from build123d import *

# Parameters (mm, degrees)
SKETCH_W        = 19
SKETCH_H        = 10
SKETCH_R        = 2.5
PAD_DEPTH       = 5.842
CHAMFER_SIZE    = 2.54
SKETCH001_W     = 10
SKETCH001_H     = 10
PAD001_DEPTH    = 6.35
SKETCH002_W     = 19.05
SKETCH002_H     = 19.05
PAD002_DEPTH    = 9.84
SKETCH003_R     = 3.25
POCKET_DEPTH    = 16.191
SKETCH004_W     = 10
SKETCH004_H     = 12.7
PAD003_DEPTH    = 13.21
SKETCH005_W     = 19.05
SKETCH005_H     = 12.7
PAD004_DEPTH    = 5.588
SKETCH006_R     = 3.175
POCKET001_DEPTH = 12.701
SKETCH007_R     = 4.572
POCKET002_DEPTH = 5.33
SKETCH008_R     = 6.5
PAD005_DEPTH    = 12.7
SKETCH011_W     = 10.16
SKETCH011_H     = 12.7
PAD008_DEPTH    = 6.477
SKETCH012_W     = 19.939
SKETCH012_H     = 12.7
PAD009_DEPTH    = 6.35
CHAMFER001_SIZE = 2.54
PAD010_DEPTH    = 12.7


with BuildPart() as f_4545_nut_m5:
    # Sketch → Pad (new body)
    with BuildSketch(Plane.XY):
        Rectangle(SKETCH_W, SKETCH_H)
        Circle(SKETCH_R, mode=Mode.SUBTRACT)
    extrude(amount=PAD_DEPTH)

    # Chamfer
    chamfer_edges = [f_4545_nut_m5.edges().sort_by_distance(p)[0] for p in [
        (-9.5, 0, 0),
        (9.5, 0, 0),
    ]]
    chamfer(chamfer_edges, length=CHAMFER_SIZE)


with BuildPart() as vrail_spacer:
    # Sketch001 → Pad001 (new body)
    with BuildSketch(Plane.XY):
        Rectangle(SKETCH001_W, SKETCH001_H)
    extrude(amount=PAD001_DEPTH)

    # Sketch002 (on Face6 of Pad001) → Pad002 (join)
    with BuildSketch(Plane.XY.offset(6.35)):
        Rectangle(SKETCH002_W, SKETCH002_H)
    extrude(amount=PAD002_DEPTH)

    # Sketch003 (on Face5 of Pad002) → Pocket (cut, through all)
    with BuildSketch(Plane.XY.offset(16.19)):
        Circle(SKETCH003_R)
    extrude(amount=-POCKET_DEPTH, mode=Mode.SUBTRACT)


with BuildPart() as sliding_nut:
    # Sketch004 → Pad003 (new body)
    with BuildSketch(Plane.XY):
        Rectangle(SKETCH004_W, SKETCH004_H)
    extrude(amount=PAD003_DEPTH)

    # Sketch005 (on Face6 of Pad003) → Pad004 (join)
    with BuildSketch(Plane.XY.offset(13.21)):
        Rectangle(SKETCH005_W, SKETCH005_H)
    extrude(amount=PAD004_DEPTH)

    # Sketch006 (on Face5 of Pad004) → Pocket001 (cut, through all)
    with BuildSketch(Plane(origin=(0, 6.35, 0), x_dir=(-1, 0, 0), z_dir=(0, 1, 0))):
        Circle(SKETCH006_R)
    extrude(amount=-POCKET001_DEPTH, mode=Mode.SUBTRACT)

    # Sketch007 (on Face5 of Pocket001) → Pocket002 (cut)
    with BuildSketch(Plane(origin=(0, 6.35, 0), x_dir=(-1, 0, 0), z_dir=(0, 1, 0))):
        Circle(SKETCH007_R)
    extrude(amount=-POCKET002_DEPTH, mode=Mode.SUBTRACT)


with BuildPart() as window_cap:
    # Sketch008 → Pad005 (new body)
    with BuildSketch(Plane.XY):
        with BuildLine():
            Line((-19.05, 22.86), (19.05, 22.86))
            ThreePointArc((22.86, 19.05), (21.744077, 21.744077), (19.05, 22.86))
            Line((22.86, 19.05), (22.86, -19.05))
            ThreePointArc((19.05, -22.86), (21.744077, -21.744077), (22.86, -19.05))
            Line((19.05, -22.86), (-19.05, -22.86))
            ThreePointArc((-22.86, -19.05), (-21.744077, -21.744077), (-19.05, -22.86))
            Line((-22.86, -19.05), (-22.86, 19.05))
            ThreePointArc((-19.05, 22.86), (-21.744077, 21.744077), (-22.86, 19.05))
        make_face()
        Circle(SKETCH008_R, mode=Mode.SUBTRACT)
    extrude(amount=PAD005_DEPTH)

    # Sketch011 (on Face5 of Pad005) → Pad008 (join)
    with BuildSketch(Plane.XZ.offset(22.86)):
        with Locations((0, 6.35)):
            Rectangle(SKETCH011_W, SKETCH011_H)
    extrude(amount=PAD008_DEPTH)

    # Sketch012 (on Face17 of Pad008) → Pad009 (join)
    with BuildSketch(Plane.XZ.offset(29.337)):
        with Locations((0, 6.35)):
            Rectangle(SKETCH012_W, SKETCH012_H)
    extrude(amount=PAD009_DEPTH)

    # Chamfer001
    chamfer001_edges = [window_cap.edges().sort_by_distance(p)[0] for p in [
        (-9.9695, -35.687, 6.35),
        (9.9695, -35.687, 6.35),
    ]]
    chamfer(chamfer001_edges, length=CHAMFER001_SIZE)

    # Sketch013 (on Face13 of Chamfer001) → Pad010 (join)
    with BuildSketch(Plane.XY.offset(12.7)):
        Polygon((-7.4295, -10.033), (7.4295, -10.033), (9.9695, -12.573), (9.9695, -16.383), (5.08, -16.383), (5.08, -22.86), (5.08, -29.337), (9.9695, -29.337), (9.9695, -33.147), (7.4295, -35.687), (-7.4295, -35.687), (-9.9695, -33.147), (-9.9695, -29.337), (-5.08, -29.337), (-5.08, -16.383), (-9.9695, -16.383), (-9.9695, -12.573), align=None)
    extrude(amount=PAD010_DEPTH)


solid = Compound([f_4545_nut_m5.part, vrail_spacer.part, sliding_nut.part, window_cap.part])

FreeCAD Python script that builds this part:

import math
import FreeCAD as App
import Part
import Sketcher

V = App.Vector
Q = App.Units.Quantity


def edges_at(feature, points):
    """Names of the edges that pass closest to the given points."""
    edges = feature.Shape.Edges
    near = lambda p: min(range(len(edges)), key=lambda i: edges[i].distToShape(Part.Vertex(*p))[0])
    return sorted({f"Edge{near(p) + 1}" for p in points})


def add_polygon(sketch, points):
    """Adds a closed chain of lines whose ends are joined by coincident constraints."""
    first, n = sketch.GeometryCount, len(points)
    for a, b in zip(points, points[1:] + points[:1]):
        sketch.addGeometry(Part.LineSegment(App.Vector(*a, 0), App.Vector(*b, 0)), False)
    for i in range(n):
        sketch.addConstraint(Sketcher.Constraint("Coincident", first + i, 2, first + (i + 1) % n, 1))

doc = App.newDocument("Part")
body = doc.addObject("PartDesign::Body", "Body")

# Sketch on XY plane
sketch1 = body.newObject("Sketcher::SketchObject", "Sketch")
sketch1.AttachmentSupport = (doc.getObject("XY_Plane"), [""])
sketch1.MapMode = "FlatFace"
add_polygon(sketch1, [(-9.5, 5), (-9.5, -5), (9.5, -5), (9.5, 5)])  # lines 0-3
sketch1.addGeometry(Part.Circle(V(0, 0, 0), V(0, 0, 1), 2.5), False)  # 4
sketch1.addConstraint([
    Sketcher.Constraint("Vertical", 0),
    Sketcher.Constraint("Horizontal", 1),
    Sketcher.Constraint("Vertical", 2),
    Sketcher.Constraint("Horizontal", 3),
    Sketcher.Constraint("Coincident", 4, 3, -1, 1),
    Sketcher.Constraint("Symmetric", 0, 2, 2, 2, -1, 1),
    Sketcher.Constraint("Diameter", 4, Q("5 mm")),
    Sketcher.Constraint("DistanceX", 1, 1, 1, 2, Q("19 mm")),
    Sketcher.Constraint("DistanceY", 0, 2, 0, 1, Q("10 mm")),
])
pad1 = body.newObject("PartDesign::Pad", "Pad")
pad1.Profile = sketch1
pad1.Length = Q("0.23 in")
doc.recompute()

chamfer = body.newObject("PartDesign::Chamfer", "Chamfer")
chamfer.Base = (pad1, edges_at(pad1, [(-9.5, 0, 0), (9.5, 0, 0)]))
chamfer.Size = Q("0.1 in")
body2 = doc.addObject("PartDesign::Body", "Body001")

# Sketch on XY plane
sketch2 = body2.newObject("Sketcher::SketchObject", "Sketch001")
sketch2.AttachmentSupport = (doc.getObject("XY_Plane001"), [""])
sketch2.MapMode = "FlatFace"
add_polygon(sketch2, [(-5, 5), (-5, -5), (5, -5), (5, 5)])  # lines 0-3
sketch2.addConstraint([
    Sketcher.Constraint("Vertical", 0),
    Sketcher.Constraint("Horizontal", 1),
    Sketcher.Constraint("Vertical", 2),
    Sketcher.Constraint("Horizontal", 3),
    Sketcher.Constraint("Symmetric", 0, 2, 2, 2, -1, 1),
    Sketcher.Constraint("Equal", 3, 0),
    Sketcher.Constraint("DistanceX", 1, 1, 1, 2, Q("10 mm")),
])
pad2 = body2.newObject("PartDesign::Pad", "Pad001")
pad2.Profile = sketch2
pad2.Length = Q("0.25 in")

# Sketch on XY plane
sketch3 = body2.newObject("Sketcher::SketchObject", "Sketch002")
sketch3.AttachmentSupport = (doc.getObject("XY_Plane001"), [""])
sketch3.MapMode = "FlatFace"
sketch3.AttachmentOffset = App.Placement(V(0, 0, 0.25 * 25.4), App.Rotation())
add_polygon(sketch3, [(-10, 10), (-10, -10), (10, -10), (10, 10)])  # lines 0-3
sketch3.addConstraint([
    Sketcher.Constraint("Vertical", 0),
    Sketcher.Constraint("Horizontal", 1),
    Sketcher.Constraint("Vertical", 2),
    Sketcher.Constraint("Horizontal", 3),
    Sketcher.Constraint("Symmetric", 0, 2, 2, 2, -1, 1),
    Sketcher.Constraint("Equal", 3, 0),
    Sketcher.Constraint("DistanceX", 1, 1, 1, 2, Q("0.75 in")),
])
pad3 = body2.newObject("PartDesign::Pad", "Pad002")
pad3.Profile = sketch3
pad3.Length = 9.84

# Sketch on XY plane
sketch4 = body2.newObject("Sketcher::SketchObject", "Sketch003")
sketch4.AttachmentSupport = (doc.getObject("XY_Plane001"), [""])
sketch4.MapMode = "FlatFace"
sketch4.AttachmentOffset = App.Placement(V(0, 0, 16.19), App.Rotation())
sketch4.addGeometry(Part.Circle(V(0, 0, 0), V(0, 0, 1), 3.2), False)
sketch4.addConstraint([
    Sketcher.Constraint("Coincident", 0, 3, -1, 1),
    Sketcher.Constraint("Diameter", 0, Q("6.5 mm")),
])
pocket1 = body2.newObject("PartDesign::Pocket", "Pocket")
pocket1.Profile = sketch4
pocket1.Type = "ThroughAll"
body3 = doc.addObject("PartDesign::Body", "Body002")

# Sketch on XY plane
sketch5 = body3.newObject("Sketcher::SketchObject", "Sketch004")
sketch5.AttachmentSupport = (doc.getObject("XY_Plane002"), [""])
sketch5.MapMode = "FlatFace"
add_polygon(sketch5, [(-5, 6), (-5, -6), (5, -6), (5, 6)])  # lines 0-3
sketch5.addConstraint([
    Sketcher.Constraint("Vertical", 0),
    Sketcher.Constraint("Horizontal", 1),
    Sketcher.Constraint("Vertical", 2),
    Sketcher.Constraint("Horizontal", 3),
    Sketcher.Constraint("Symmetric", 0, 2, 2, 2, -1, 1),
    Sketcher.Constraint("DistanceY", 0, 2, 0, 1, Q("0.5 in")),
    Sketcher.Constraint("DistanceX", 1, 1, 1, 2, Q("10 mm")),
])
pad4 = body3.newObject("PartDesign::Pad", "Pad003")
pad4.Profile = sketch5
pad4.Length = 13.21

# Sketch on XY plane
sketch6 = body3.newObject("Sketcher::SketchObject", "Sketch005")
sketch6.AttachmentSupport = (doc.getObject("XY_Plane002"), [""])
sketch6.MapMode = "FlatFace"
sketch6.AttachmentOffset = App.Placement(V(0, 0, 13.21), App.Rotation())
add_polygon(sketch6, [(-10, 6), (-10, -6), (10, -6), (10, 6)])  # lines 0-3
sketch6.addConstraint([
    Sketcher.Constraint("Vertical", 0),
    Sketcher.Constraint("Horizontal", 1),
    Sketcher.Constraint("Vertical", 2),
    Sketcher.Constraint("Horizontal", 3),
    Sketcher.Constraint("Symmetric", 0, 2, 2, 2, -1, 1),
    Sketcher.Constraint("DistanceY", 0, 2, 0, 1, Q("0.5 in")),
    Sketcher.Constraint("DistanceX", 1, 1, 1, 2, Q("0.75 in")),
])
pad5 = body3.newObject("PartDesign::Pad", "Pad004")
pad5.Profile = sketch6
pad5.Length = Q("0.22 in")

# Sketch on XZ plane
sketch7 = body3.newObject("Sketcher::SketchObject", "Sketch006")
sketch7.AttachmentSupport = (doc.getObject("XZ_Plane002"), [""])
sketch7.MapMode = "FlatFace"
sketch7.AttachmentOffset = App.Placement(V(0, 0, -0.25 * 25.4), App.Rotation())
sketch7.addGeometry(Part.Circle(V(0, 0, 0), V(0, 0, 1), 3.2), False)
sketch7.addConstraint([
    Sketcher.Constraint("Coincident", 0, 3, -1, 1),
    Sketcher.Constraint("Diameter", 0, Q("0.25 in")),
])
pocket2 = body3.newObject("PartDesign::Pocket", "Pocket001")
pocket2.Profile = sketch7
pocket2.Type = "ThroughAll"
pocket2.Reversed = True

# Sketch on XZ plane
sketch8 = body3.newObject("Sketcher::SketchObject", "Sketch007")
sketch8.AttachmentSupport = (doc.getObject("XZ_Plane002"), [""])
sketch8.MapMode = "FlatFace"
sketch8.AttachmentOffset = App.Placement(V(0, 0, -0.25 * 25.4), App.Rotation())
sketch8.addGeometry(Part.Circle(V(0, 0, 0), V(0, 0, 1), 4.6), False)
sketch8.addConstraint([
    Sketcher.Constraint("Coincident", 0, 3, -1, 1),
    Sketcher.Constraint("Diameter", 0, Q("0.36 in")),
])
pocket3 = body3.newObject("PartDesign::Pocket", "Pocket002")
pocket3.Profile = sketch8
pocket3.Length = 5.33
pocket3.Reversed = True
body4 = doc.addObject("PartDesign::Body", "Body003")

# Sketch on XY plane
sketch9 = body4.newObject("Sketcher::SketchObject", "Sketch008")
sketch9.AttachmentSupport = (doc.getObject("XY_Plane003"), [""])
sketch9.MapMode = "FlatFace"
sketch9.addGeometry([
    Part.LineSegment(V(19.1, 22.9, 0), V(-19.1, 22.9, 0)),  # 0
    Part.ArcOfCircle(Part.Circle(V(-19.1, 19.1, 0), V(0, 0, 1), 3.8), math.radians(90), math.radians(180)),  # 1
    Part.LineSegment(V(-22.9, 19.1, 0), V(-22.9, -19.1, 0)),  # 2
    Part.ArcOfCircle(Part.Circle(V(-19.1, -19.1, 0), V(0, 0, 1), 3.8), math.radians(180), math.radians(270)),  # 3
    Part.LineSegment(V(-19.1, -22.9, 0), V(19.1, -22.9, 0)),  # 4
    Part.ArcOfCircle(Part.Circle(V(19.1, -19.1, 0), V(0, 0, 1), 3.8), math.radians(-90), math.radians(0)),  # 5
    Part.LineSegment(V(22.9, -19.1, 0), V(22.9, 19.1, 0)),  # 6
    Part.ArcOfCircle(Part.Circle(V(19.1, 19.1, 0), V(0, 0, 1), 3.8), math.radians(0), math.radians(90)),  # 7
    Part.Circle(V(0, 0, 0), V(0, 0, 1), 6.5),  # 8
], False)
sketch9.addConstraint([
    Sketcher.Constraint("Tangent", 0, 2, 1, 1),
    Sketcher.Constraint("Tangent", 1, 2, 2, 1),
    Sketcher.Constraint("Tangent", 2, 2, 3, 1),
    Sketcher.Constraint("Tangent", 3, 2, 4, 1),
    Sketcher.Constraint("Tangent", 4, 2, 5, 1),
    Sketcher.Constraint("Tangent", 5, 2, 6, 1),
    Sketcher.Constraint("Tangent", 6, 2, 7, 1),
    Sketcher.Constraint("Tangent", 7, 2, 0, 1),
    Sketcher.Constraint("Horizontal", 0),
    Sketcher.Constraint("Vertical", 2),
    Sketcher.Constraint("Horizontal", 4),
    Sketcher.Constraint("Vertical", 6),
    Sketcher.Constraint("Coincident", 8, 3, -1, 1),
    Sketcher.Constraint("Equal", 1, 3),
    Sketcher.Constraint("Equal", 3, 5),
    Sketcher.Constraint("Equal", 5, 7),
    Sketcher.Constraint("Symmetric", 1, 3, 5, 3, -1, 1),
    Sketcher.Constraint("Equal", 4, 2),
    Sketcher.Constraint("Radius", 1, Q("0.15 in")),
    Sketcher.Constraint("DistanceX", 0, 2, 0, 1, Q("1.5 in")),
    Sketcher.Constraint("Diameter", 8, Q("13 mm")),
])
pad6 = body4.newObject("PartDesign::Pad", "Pad005")
pad6.Profile = sketch9
pad6.Length = Q("0.5 in")

# Sketch on XZ plane
sketch10 = body4.newObject("Sketcher::SketchObject", "Sketch009")
sketch10.AttachmentSupport = (doc.getObject("XZ_Plane003"), [""])
sketch10.MapMode = "FlatFace"
sketch10.AttachmentOffset = App.Placement(V(0, 0, 0.9 * 25.4), App.Rotation())
add_polygon(sketch10, [(-5, 13), (-5, 0), (5, 0), (5, 13)])  # lines 0-3
sketch10.addConstraint([
    Sketcher.Constraint("Vertical", 0),
    Sketcher.Constraint("Horizontal", 1),
    Sketcher.Constraint("Vertical", 2),
    Sketcher.Constraint("Horizontal", 3),
    Sketcher.Constraint("Symmetric", 0, 2, 1, 2, -1, 1),
    Sketcher.Constraint("DistanceX", 1, 1, 1, 2, Q("0.4 in")),
    Sketcher.Constraint("DistanceY", 0, 2, 0, 1, Q("0.5 in")),
])
pad7 = body4.newObject("PartDesign::Pad", "Pad006")
pad7.Profile = sketch10
pad7.Length = Q("0.255 in")

# Sketch on XZ plane
sketch11 = body4.newObject("Sketcher::SketchObject", "Sketch010")
sketch11.AttachmentSupport = (doc.getObject("XZ_Plane003"), [""])
sketch11.MapMode = "FlatFace"
sketch11.AttachmentOffset = App.Placement(V(0, 0, 1.155 * 25.4), App.Rotation())
add_polygon(sketch11, [(-10, 13), (-10, 0), (10, 0), (10, 13)])  # lines 0-3
sketch11.addConstraint([
    Sketcher.Constraint("Vertical", 0),
    Sketcher.Constraint("Horizontal", 1),
    Sketcher.Constraint("Vertical", 2),
    Sketcher.Constraint("Horizontal", 3),
    Sketcher.Constraint("Symmetric", 0, 2, 1, 2, -1, 1),
    Sketcher.Constraint("DistanceY", 0, 2, 0, 1, Q("0.5 in")),
    Sketcher.Constraint("DistanceX", 1, 1, 1, 2, Q("0.785 in")),
])
pad8 = body4.newObject("PartDesign::Pad", "Pad007")
pad8.Profile = sketch11
pad8.Length = Q("0.25 in")
doc.recompute()

chamfer2 = body4.newObject("PartDesign::Chamfer", "Chamfer001")
chamfer2.Base = (pad8, edges_at(pad8, [(-9.97, -35.687, 6.35), (9.97, -35.687, 6.35)]))
chamfer2.Size = Q("0.1 in")

# Sketch on XY plane
sketch12 = body4.newObject("Sketcher::SketchObject", "Sketch011")
sketch12.AttachmentSupport = (doc.getObject("XY_Plane003"), [""])
sketch12.MapMode = "FlatFace"
sketch12.AttachmentOffset = App.Placement(V(0, 0, 0.5 * 25.4), App.Rotation())
add_polygon(sketch12, [(7.4, -10), (-7.4, -10), (-10, -12.6), (-10, -16.4), (-5.1, -16.4), (-5.1, -29.3), (-10, -29.3), (-10, -33.1), (-7.4, -35.7), (7.4, -35.7), (10, -33.1), (10, -29.3), (5.1, -29.3), (5.1, -16.4), (10, -16.4), (10, -12.6)])  # lines 0-15
sketch12.addConstraint([
    Sketcher.Constraint("Horizontal", 0),
    Sketcher.Constraint("Vertical", 2),
    Sketcher.Constraint("Horizontal", 3),
    Sketcher.Constraint("Vertical", 4),
    Sketcher.Constraint("Horizontal", 5),
    Sketcher.Constraint("Vertical", 6),
    Sketcher.Constraint("Horizontal", 8),
    Sketcher.Constraint("Vertical", 10),
    Sketcher.Constraint("Horizontal", 11),
    Sketcher.Constraint("Vertical", 12),
    Sketcher.Constraint("Horizontal", 13),
    Sketcher.Constraint("Vertical", 14),
    Sketcher.Constraint("Symmetric", 6, 2, 9, 2, -2),
    Sketcher.Constraint("Symmetric", 4, 2, 11, 2, -2),
    Sketcher.Constraint("Symmetric", 2, 2, 13, 2, -2),
    Sketcher.Constraint("Perpendicular", 1, 7),
    Sketcher.Constraint("Perpendicular", 7, 9),
    Sketcher.Constraint("Perpendicular", 9, 15),
    Sketcher.Constraint("Horizontal", 1, 2, 14, 2),
    Sketcher.Constraint("Vertical", 2, 2, 5, 2),
    Sketcher.Constraint("Vertical", 0, 2, 7, 2),
    Sketcher.Constraint("Vertical", 8, 2, 15, 2),
    Sketcher.Constraint("Equal", 2, 6),
    Sketcher.Constraint("DistanceY", 2, 2, 2, 1, Q("0.15 in")),
    Sketcher.Constraint("DistanceY", 4, 2, 4, 1, Q("0.51 in")),
    Sketcher.Constraint("DistanceX", 3, 2, -1, 1, Q("0.2 in")),
    Sketcher.Constraint("DistanceX", 1, 2, 0, 2, Q("0.1 in")),
    Sketcher.Constraint("DistanceX", 0, 2, 0, 1, Q("0.585 in")),
    Sketcher.Constraint("DistanceY", 0, 2, -1, 1, Q("0.395 in")),
])
pad9 = body4.newObject("PartDesign::Pad", "Pad008")
pad9.Profile = sketch12
pad9.Length = Q("0.5 in")

doc.recompute()
